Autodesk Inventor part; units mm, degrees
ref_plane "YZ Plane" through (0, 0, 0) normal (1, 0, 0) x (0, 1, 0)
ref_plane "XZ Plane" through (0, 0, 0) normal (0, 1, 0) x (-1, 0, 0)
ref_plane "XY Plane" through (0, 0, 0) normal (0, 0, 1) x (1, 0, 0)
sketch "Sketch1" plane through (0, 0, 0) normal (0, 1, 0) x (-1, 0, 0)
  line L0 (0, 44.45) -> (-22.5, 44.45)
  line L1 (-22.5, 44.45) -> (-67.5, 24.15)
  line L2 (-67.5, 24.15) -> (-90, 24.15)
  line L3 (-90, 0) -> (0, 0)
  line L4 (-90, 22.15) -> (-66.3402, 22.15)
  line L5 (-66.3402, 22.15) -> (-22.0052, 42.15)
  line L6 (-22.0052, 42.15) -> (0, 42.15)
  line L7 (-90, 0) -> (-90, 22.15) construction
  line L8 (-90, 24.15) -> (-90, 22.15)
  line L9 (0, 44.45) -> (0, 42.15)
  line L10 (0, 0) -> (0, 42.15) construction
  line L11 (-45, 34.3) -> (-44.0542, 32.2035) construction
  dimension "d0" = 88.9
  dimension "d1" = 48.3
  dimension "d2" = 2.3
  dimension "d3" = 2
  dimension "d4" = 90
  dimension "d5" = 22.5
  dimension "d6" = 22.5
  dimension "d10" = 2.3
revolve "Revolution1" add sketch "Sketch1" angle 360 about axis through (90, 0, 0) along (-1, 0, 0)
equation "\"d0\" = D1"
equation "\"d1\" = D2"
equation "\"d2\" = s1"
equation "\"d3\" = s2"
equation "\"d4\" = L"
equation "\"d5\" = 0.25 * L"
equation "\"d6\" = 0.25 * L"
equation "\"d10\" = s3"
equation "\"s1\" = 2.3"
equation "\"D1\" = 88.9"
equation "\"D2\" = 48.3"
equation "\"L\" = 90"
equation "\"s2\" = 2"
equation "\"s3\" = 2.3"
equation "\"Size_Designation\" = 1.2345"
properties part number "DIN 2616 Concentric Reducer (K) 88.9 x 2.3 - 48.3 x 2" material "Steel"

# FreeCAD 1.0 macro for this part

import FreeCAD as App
import Part
import Sketcher

V = App.Vector
Q = App.Units.Quantity

doc = App.newDocument("Part")
body = doc.addObject("PartDesign::Body", "Body")

sketch1 = doc.addObject("Sketcher::SketchObject", "Sketch")
body.addObject(sketch1)
sketch1.AttachmentSupport = (doc.XZ_Plane, [""])
sketch1.MapMode = "FlatFace"
sketch1.addGeometry([
    Part.LineSegment(V(0, 42.1, 0), V(0, 44.5, 0)),
    Part.LineSegment(V(0, 44.5, 0), V(22.5, 44.5, 0)),
    Part.LineSegment(V(22.5, 44.5, 0), V(67.5, 24.1, 0)),
    Part.LineSegment(V(67.5, 24.1, 0), V(90, 24.1, 0)),
    Part.LineSegment(V(90, 24.1, 0), V(90, 22.1, 0)),
    Part.LineSegment(V(90, 22.1, 0), V(66.3, 22.1, 0)),
    Part.LineSegment(V(66.3, 22.1, 0), V(22, 42.1, 0)),
    Part.LineSegment(V(22, 42.1, 0), V(0, 42.1, 0)),
], False)
sketch1.addConstraint([
    Sketcher.Constraint("Coincident", 0, 2, 1, 1),
    Sketcher.Constraint("Coincident", 1, 2, 2, 1),
    Sketcher.Constraint("Coincident", 2, 2, 3, 1),
    Sketcher.Constraint("Coincident", 3, 2, 4, 1),
    Sketcher.Constraint("Coincident", 4, 2, 5, 1),
    Sketcher.Constraint("Coincident", 5, 2, 6, 1),
    Sketcher.Constraint("Coincident", 6, 2, 7, 1),
    Sketcher.Constraint("Coincident", 7, 2, 0, 1),
    Sketcher.Constraint("Vertical", 0),
    Sketcher.Constraint("Horizontal", 1),
    Sketcher.Constraint("Horizontal", 3),
    Sketcher.Constraint("Vertical", 4),
    Sketcher.Constraint("Horizontal", 5),
    Sketcher.Constraint("Horizontal", 7),
    Sketcher.Constraint("PointOnObject", 0, 2, -2),
    Sketcher.Constraint("Parallel", 2, 6),
    Sketcher.Constraint("Equal", 1, 3),
    Sketcher.Constraint("DistanceY", 4, 2, 4, 1, Q("2 mm")),
    Sketcher.Constraint("DistanceX", 1, 1, 1, 2, Q("22.5 mm")),
    Sketcher.Constraint("DistanceY", 0, 1, 0, 2, Q("2.3 mm")),
    Sketcher.Constraint("DistanceX", -1, 1, 3, 2, Q("90 mm")),
    Sketcher.Constraint("DistanceY", 5, 2, 6, 2, Q("20 mm")),
    Sketcher.Constraint("DistanceY", -1, 1, 0, 2, Q("44.45 mm")),
    Sketcher.Constraint("DistanceX", 5, 2, 5, 1, Q("23.6598 mm")),
])
revolution = doc.addObject("PartDesign::Revolution", "Revolution")
body.addObject(revolution)
revolution.Profile = sketch1
revolution.ReferenceAxis = (sketch1, ["H_Axis"])
revolution.Angle = 360

doc.recompute()
